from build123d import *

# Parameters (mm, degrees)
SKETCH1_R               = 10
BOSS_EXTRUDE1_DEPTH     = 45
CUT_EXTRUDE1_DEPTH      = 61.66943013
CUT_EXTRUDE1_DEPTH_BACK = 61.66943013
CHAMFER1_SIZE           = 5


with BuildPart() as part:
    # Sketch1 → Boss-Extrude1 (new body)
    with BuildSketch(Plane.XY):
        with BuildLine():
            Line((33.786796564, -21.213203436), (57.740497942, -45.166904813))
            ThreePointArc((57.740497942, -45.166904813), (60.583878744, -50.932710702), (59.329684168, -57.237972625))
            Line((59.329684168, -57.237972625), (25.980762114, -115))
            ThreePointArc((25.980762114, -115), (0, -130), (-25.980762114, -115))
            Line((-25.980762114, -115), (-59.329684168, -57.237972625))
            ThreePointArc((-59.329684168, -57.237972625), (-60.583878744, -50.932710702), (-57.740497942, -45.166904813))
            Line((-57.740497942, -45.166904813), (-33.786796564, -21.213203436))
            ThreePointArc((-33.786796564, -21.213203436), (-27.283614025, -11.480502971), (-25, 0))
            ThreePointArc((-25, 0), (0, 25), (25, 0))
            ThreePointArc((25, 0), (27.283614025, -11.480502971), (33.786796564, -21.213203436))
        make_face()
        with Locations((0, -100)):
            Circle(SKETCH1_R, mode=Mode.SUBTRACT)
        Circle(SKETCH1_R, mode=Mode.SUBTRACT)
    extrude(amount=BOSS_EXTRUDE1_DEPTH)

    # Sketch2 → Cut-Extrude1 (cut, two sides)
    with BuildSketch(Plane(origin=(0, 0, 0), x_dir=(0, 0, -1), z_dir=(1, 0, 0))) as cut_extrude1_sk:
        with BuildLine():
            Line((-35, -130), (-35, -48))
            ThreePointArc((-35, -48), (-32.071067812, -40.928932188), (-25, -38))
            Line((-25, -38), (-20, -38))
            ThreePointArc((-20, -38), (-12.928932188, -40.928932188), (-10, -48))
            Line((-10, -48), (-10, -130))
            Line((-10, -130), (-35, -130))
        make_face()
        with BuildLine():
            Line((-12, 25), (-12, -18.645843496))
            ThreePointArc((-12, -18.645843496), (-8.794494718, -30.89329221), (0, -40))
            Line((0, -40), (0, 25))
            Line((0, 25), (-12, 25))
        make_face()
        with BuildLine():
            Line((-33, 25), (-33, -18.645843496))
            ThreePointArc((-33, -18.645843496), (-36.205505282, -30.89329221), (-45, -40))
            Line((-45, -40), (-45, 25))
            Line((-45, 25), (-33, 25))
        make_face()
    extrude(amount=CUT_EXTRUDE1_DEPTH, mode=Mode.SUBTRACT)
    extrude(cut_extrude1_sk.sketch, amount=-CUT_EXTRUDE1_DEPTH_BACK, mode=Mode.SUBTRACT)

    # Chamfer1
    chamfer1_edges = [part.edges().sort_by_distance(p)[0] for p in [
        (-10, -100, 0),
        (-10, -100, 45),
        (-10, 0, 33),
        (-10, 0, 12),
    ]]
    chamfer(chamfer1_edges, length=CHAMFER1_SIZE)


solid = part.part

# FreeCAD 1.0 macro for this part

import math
import FreeCAD as App
import Part
import Sketcher
Q = App.Units.Quantity


def edges_at(feature, points):
    """Names of the edges that pass closest to the given points."""
    edges = feature.Shape.Edges
    near = lambda p: min(range(len(edges)), key=lambda i: edges[i].distToShape(Part.Vertex(*p))[0])
    return sorted({f"Edge{near(p) + 1}" for p in points})

doc = App.newDocument("Part")
body = doc.addObject("PartDesign::Body", "Body")

# Sketch on XY plane
sketch1 = doc.addObject("Sketcher::SketchObject", "Sketch")
body.addObject(sketch1)
sketch1.AttachmentSupport = (doc.XY_Plane, [""])
sketch1.MapMode = "FlatFace"
sketch1.addGeometry(Part.LineSegment(App.Vector(58, -45, 0), App.Vector(34, -21, 0)), False)
sketch1.addGeometry(Part.ArcOfCircle(Part.Circle(App.Vector(55, 0, 0), App.Vector(0, 0, 1), 30), math.radians(-180), math.radians(-135)), False)
sketch1.addGeometry(Part.ArcOfCircle(Part.Circle(App.Vector(0, 0, 0), App.Vector(0, 0, 1), 25), math.radians(0), math.radians(180)), False)
sketch1.addGeometry(Part.ArcOfCircle(Part.Circle(App.Vector(-55, 0, 0), App.Vector(0, 0, 1), 30), math.radians(-45), math.radians(0)), False)
sketch1.addGeometry(Part.LineSegment(App.Vector(-34, -21, 0), App.Vector(-58, -45, 0)), False)
sketch1.addGeometry(Part.ArcOfCircle(Part.Circle(App.Vector(-51, -52, 0), App.Vector(0, 0, 1), 10), math.radians(135), math.radians(210)), False)
sketch1.addGeometry(Part.LineSegment(App.Vector(-59, -57, 0), App.Vector(-26, -115, 0)), False)
sketch1.addGeometry(Part.ArcOfCircle(Part.Circle(App.Vector(0, -100, 0), App.Vector(0, 0, 1), 30), math.radians(-150), math.radians(-30)), False)
sketch1.addGeometry(Part.LineSegment(App.Vector(26, -115, 0), App.Vector(59, -57, 0)), False)
sketch1.addGeometry(Part.ArcOfCircle(Part.Circle(App.Vector(51, -52, 0), App.Vector(0, 0, 1), 10), math.radians(-30), math.radians(45)), False)
sketch1.addGeometry(Part.Circle(App.Vector(0, -100, 0), App.Vector(0, 0, 1), 10), False)
sketch1.addGeometry(Part.Circle(App.Vector(0, 0, 0), App.Vector(0, 0, 1), 10), False)
sketch1.addConstraint(Sketcher.Constraint("Tangent", 0, 2, 1, 2))
sketch1.addConstraint(Sketcher.Constraint("Tangent", 1, 1, 2, 1))
sketch1.addConstraint(Sketcher.Constraint("Tangent", 2, 2, 3, 2))
sketch1.addConstraint(Sketcher.Constraint("Tangent", 3, 1, 4, 1))
sketch1.addConstraint(Sketcher.Constraint("Tangent", 4, 2, 5, 1))
sketch1.addConstraint(Sketcher.Constraint("Tangent", 5, 2, 6, 1))
sketch1.addConstraint(Sketcher.Constraint("Tangent", 6, 2, 7, 1))
sketch1.addConstraint(Sketcher.Constraint("Tangent", 7, 2, 8, 1))
sketch1.addConstraint(Sketcher.Constraint("Tangent", 8, 2, 9, 1))
sketch1.addConstraint(Sketcher.Constraint("Tangent", 9, 2, 0, 1))
sketch1.addConstraint(Sketcher.Constraint("Coincident", 2, 3, -1, 1))
sketch1.addConstraint(Sketcher.Constraint("Coincident", 11, 3, -1, 1))
sketch1.addConstraint(Sketcher.Constraint("Coincident", 10, 3, 7, 3))
sketch1.addConstraint(Sketcher.Constraint("Equal", 1, 3))
sketch1.addConstraint(Sketcher.Constraint("Equal", 3, 7))
sketch1.addConstraint(Sketcher.Constraint("Equal", 5, 9))
sketch1.addConstraint(Sketcher.Constraint("Equal", 9, 10))
sketch1.addConstraint(Sketcher.Constraint("Equal", 10, 11))
sketch1.addConstraint(Sketcher.Constraint("Symmetric", 5, 3, 9, 3, -2))
sketch1.addConstraint(Sketcher.Constraint("PointOnObject", 1, 3, -1))
sketch1.addConstraint(Sketcher.Constraint("PointOnObject", 3, 3, -1))
sketch1.addConstraint(Sketcher.Constraint("PointOnObject", 7, 3, -2))
sketch1.addConstraint(Sketcher.Constraint("Perpendicular", 0, 4))
sketch1.addConstraint(Sketcher.Constraint("Diameter", 10, Q("20 mm")))
sketch1.addConstraint(Sketcher.Constraint("Radius", 1, Q("30 mm")))
sketch1.addConstraint(Sketcher.Constraint("Radius", 2, Q("25 mm")))
sketch1.addConstraint(Sketcher.Constraint("Angle", 6, Q("-60 deg")))
sketch1.addConstraint(Sketcher.Constraint("DistanceY", 7, 3, -1, 1, Q("100 mm")))
pad1 = doc.addObject("PartDesign::Pad", "Pad")
body.addObject(pad1)
pad1.Profile = sketch1
pad1.Length = 45

# Sketch on YZ plane
sketch2 = doc.addObject("Sketcher::SketchObject", "Sketch001")
body.addObject(sketch2)
sketch2.AttachmentSupport = (doc.YZ_Plane, [""])
sketch2.MapMode = "FlatFace"
sketch2.addGeometry(Part.LineSegment(App.Vector(-48, 35, 0), App.Vector(-130, 35, 0)), False)
sketch2.addGeometry(Part.LineSegment(App.Vector(-130, 35, 0), App.Vector(-130, 10, 0)), False)
sketch2.addGeometry(Part.LineSegment(App.Vector(-130, 10, 0), App.Vector(-48, 10, 0)), False)
sketch2.addGeometry(Part.ArcOfCircle(Part.Circle(App.Vector(-48, 20, 0), App.Vector(0, 0, 1), 10), math.radians(-90), math.radians(0)), False)
sketch2.addGeometry(Part.LineSegment(App.Vector(-38, 20, 0), App.Vector(-38, 25, 0)), False)
sketch2.addGeometry(Part.ArcOfCircle(Part.Circle(App.Vector(-48, 25, 0), App.Vector(0, 0, 1), 10), math.radians(0), math.radians(90)), False)
sketch2.addGeometry(Part.LineSegment(App.Vector(25, 12, 0), App.Vector(-19, 12, 0)), False)
sketch2.addGeometry(Part.ArcOfCircle(Part.Circle(App.Vector(-19, -13, 0), App.Vector(0, 0, 1), 25), math.radians(90), math.radians(149)), False)
sketch2.addGeometry(Part.LineSegment(App.Vector(-40, 0, 0), App.Vector(25, 0, 0)), False)
sketch2.addGeometry(Part.LineSegment(App.Vector(25, 0, 0), App.Vector(25, 12, 0)), False)
sketch2.addGeometry(Part.LineSegment(App.Vector(-19, 33, 0), App.Vector(25, 33, 0)), False)
sketch2.addGeometry(Part.LineSegment(App.Vector(25, 33, 0), App.Vector(25, 45, 0)), False)
sketch2.addGeometry(Part.LineSegment(App.Vector(25, 45, 0), App.Vector(-40, 45, 0)), False)
sketch2.addGeometry(Part.ArcOfCircle(Part.Circle(App.Vector(-19, 58, 0), App.Vector(0, 0, 1), 25), math.radians(-149), math.radians(-90)), False)
sketch2.addConstraint(Sketcher.Constraint("Coincident", 0, 2, 1, 1))
sketch2.addConstraint(Sketcher.Constraint("Coincident", 1, 2, 2, 1))
sketch2.addConstraint(Sketcher.Constraint("Tangent", 2, 2, 3, 1))
sketch2.addConstraint(Sketcher.Constraint("Tangent", 3, 2, 4, 1))
sketch2.addConstraint(Sketcher.Constraint("Tangent", 4, 2, 5, 1))
sketch2.addConstraint(Sketcher.Constraint("Tangent", 5, 2, 0, 1))
sketch2.addConstraint(Sketcher.Constraint("Tangent", 6, 2, 7, 1))
sketch2.addConstraint(Sketcher.Constraint("Coincident", 7, 2, 8, 1))
sketch2.addConstraint(Sketcher.Constraint("Coincident", 8, 2, 9, 1))
sketch2.addConstraint(Sketcher.Constraint("Coincident", 9, 2, 6, 1))
sketch2.addConstraint(Sketcher.Constraint("Coincident", 10, 2, 11, 1))
sketch2.addConstraint(Sketcher.Constraint("Coincident", 11, 2, 12, 1))
sketch2.addConstraint(Sketcher.Constraint("Coincident", 12, 2, 13, 1))
sketch2.addConstraint(Sketcher.Constraint("Tangent", 13, 2, 10, 1))
sketch2.addConstraint(Sketcher.Constraint("Horizontal", 0))
sketch2.addConstraint(Sketcher.Constraint("Vertical", 1))
sketch2.addConstraint(Sketcher.Constraint("Horizontal", 2))
sketch2.addConstraint(Sketcher.Constraint("Vertical", 4))
sketch2.addConstraint(Sketcher.Constraint("Horizontal", 6))
sketch2.addConstraint(Sketcher.Constraint("Horizontal", 8))
sketch2.addConstraint(Sketcher.Constraint("Vertical", 9))
sketch2.addConstraint(Sketcher.Constraint("Horizontal", 10))
sketch2.addConstraint(Sketcher.Constraint("Vertical", 11))
sketch2.addConstraint(Sketcher.Constraint("Horizontal", 12))
sketch2.addConstraint(Sketcher.Constraint("Equal", 3, 5))
sketch2.addConstraint(Sketcher.Constraint("Equal", 7, 13))
sketch2.addConstraint(Sketcher.Constraint("PointOnObject", 7, 2, -1))
sketch2.addConstraint(Sketcher.Constraint("Vertical", 7, 3, 13, 3))
sketch2.addConstraint(Sketcher.Constraint("Vertical", 9, 2, 10, 2))
sketch2.addConstraint(Sketcher.Constraint("Vertical", 7, 2, 12, 2))
sketch2.addConstraint(Sketcher.Constraint("Radius", 3, Q("10 mm")))
sketch2.addConstraint(Sketcher.Constraint("Radius", 7, Q("25 mm")))
sketch2.addConstraint(Sketcher.Constraint("DistanceX", 0, 2, 0, 1, Q("82 mm")))
sketch2.addConstraint(Sketcher.Constraint("DistanceX", 8, 1, 8, 2, Q("65 mm")))
sketch2.addConstraint(Sketcher.Constraint("DistanceY", 1, 2, 1, 1, Q("25 mm")))
sketch2.addConstraint(Sketcher.Constraint("DistanceY", 9, 1, 9, 2, Q("12 mm")))
sketch2.addConstraint(Sketcher.Constraint("DistanceX", 3, 3, -1, 1, Q("48 mm")))
sketch2.addConstraint(Sketcher.Constraint("DistanceY", -1, 1, 3, 3, Q("20 mm")))
sketch2.addConstraint(Sketcher.Constraint("DistanceY", -1, 1, 13, 3, Q("58 mm")))
sketch2.addConstraint(Sketcher.Constraint("DistanceX", 7, 2, -1, 1, Q("40 mm")))
pocket1 = doc.addObject("PartDesign::Pocket", "Pocket")
body.addObject(pocket1)
pocket1.Profile = sketch2
pocket1.Type = "ThroughAll"
pocket1.Midplane = True
doc.recompute()

chamfer = doc.addObject("PartDesign::Chamfer", "Chamfer")
body.addObject(chamfer)
chamfer.Base = (pocket1, edges_at(pocket1, [
    (-10, -100, 0),
    (-10, -100, 45),
    (-10, 0, 33),
    (-10, 0, 12),
]))
chamfer.Size = 5

doc.recompute()
